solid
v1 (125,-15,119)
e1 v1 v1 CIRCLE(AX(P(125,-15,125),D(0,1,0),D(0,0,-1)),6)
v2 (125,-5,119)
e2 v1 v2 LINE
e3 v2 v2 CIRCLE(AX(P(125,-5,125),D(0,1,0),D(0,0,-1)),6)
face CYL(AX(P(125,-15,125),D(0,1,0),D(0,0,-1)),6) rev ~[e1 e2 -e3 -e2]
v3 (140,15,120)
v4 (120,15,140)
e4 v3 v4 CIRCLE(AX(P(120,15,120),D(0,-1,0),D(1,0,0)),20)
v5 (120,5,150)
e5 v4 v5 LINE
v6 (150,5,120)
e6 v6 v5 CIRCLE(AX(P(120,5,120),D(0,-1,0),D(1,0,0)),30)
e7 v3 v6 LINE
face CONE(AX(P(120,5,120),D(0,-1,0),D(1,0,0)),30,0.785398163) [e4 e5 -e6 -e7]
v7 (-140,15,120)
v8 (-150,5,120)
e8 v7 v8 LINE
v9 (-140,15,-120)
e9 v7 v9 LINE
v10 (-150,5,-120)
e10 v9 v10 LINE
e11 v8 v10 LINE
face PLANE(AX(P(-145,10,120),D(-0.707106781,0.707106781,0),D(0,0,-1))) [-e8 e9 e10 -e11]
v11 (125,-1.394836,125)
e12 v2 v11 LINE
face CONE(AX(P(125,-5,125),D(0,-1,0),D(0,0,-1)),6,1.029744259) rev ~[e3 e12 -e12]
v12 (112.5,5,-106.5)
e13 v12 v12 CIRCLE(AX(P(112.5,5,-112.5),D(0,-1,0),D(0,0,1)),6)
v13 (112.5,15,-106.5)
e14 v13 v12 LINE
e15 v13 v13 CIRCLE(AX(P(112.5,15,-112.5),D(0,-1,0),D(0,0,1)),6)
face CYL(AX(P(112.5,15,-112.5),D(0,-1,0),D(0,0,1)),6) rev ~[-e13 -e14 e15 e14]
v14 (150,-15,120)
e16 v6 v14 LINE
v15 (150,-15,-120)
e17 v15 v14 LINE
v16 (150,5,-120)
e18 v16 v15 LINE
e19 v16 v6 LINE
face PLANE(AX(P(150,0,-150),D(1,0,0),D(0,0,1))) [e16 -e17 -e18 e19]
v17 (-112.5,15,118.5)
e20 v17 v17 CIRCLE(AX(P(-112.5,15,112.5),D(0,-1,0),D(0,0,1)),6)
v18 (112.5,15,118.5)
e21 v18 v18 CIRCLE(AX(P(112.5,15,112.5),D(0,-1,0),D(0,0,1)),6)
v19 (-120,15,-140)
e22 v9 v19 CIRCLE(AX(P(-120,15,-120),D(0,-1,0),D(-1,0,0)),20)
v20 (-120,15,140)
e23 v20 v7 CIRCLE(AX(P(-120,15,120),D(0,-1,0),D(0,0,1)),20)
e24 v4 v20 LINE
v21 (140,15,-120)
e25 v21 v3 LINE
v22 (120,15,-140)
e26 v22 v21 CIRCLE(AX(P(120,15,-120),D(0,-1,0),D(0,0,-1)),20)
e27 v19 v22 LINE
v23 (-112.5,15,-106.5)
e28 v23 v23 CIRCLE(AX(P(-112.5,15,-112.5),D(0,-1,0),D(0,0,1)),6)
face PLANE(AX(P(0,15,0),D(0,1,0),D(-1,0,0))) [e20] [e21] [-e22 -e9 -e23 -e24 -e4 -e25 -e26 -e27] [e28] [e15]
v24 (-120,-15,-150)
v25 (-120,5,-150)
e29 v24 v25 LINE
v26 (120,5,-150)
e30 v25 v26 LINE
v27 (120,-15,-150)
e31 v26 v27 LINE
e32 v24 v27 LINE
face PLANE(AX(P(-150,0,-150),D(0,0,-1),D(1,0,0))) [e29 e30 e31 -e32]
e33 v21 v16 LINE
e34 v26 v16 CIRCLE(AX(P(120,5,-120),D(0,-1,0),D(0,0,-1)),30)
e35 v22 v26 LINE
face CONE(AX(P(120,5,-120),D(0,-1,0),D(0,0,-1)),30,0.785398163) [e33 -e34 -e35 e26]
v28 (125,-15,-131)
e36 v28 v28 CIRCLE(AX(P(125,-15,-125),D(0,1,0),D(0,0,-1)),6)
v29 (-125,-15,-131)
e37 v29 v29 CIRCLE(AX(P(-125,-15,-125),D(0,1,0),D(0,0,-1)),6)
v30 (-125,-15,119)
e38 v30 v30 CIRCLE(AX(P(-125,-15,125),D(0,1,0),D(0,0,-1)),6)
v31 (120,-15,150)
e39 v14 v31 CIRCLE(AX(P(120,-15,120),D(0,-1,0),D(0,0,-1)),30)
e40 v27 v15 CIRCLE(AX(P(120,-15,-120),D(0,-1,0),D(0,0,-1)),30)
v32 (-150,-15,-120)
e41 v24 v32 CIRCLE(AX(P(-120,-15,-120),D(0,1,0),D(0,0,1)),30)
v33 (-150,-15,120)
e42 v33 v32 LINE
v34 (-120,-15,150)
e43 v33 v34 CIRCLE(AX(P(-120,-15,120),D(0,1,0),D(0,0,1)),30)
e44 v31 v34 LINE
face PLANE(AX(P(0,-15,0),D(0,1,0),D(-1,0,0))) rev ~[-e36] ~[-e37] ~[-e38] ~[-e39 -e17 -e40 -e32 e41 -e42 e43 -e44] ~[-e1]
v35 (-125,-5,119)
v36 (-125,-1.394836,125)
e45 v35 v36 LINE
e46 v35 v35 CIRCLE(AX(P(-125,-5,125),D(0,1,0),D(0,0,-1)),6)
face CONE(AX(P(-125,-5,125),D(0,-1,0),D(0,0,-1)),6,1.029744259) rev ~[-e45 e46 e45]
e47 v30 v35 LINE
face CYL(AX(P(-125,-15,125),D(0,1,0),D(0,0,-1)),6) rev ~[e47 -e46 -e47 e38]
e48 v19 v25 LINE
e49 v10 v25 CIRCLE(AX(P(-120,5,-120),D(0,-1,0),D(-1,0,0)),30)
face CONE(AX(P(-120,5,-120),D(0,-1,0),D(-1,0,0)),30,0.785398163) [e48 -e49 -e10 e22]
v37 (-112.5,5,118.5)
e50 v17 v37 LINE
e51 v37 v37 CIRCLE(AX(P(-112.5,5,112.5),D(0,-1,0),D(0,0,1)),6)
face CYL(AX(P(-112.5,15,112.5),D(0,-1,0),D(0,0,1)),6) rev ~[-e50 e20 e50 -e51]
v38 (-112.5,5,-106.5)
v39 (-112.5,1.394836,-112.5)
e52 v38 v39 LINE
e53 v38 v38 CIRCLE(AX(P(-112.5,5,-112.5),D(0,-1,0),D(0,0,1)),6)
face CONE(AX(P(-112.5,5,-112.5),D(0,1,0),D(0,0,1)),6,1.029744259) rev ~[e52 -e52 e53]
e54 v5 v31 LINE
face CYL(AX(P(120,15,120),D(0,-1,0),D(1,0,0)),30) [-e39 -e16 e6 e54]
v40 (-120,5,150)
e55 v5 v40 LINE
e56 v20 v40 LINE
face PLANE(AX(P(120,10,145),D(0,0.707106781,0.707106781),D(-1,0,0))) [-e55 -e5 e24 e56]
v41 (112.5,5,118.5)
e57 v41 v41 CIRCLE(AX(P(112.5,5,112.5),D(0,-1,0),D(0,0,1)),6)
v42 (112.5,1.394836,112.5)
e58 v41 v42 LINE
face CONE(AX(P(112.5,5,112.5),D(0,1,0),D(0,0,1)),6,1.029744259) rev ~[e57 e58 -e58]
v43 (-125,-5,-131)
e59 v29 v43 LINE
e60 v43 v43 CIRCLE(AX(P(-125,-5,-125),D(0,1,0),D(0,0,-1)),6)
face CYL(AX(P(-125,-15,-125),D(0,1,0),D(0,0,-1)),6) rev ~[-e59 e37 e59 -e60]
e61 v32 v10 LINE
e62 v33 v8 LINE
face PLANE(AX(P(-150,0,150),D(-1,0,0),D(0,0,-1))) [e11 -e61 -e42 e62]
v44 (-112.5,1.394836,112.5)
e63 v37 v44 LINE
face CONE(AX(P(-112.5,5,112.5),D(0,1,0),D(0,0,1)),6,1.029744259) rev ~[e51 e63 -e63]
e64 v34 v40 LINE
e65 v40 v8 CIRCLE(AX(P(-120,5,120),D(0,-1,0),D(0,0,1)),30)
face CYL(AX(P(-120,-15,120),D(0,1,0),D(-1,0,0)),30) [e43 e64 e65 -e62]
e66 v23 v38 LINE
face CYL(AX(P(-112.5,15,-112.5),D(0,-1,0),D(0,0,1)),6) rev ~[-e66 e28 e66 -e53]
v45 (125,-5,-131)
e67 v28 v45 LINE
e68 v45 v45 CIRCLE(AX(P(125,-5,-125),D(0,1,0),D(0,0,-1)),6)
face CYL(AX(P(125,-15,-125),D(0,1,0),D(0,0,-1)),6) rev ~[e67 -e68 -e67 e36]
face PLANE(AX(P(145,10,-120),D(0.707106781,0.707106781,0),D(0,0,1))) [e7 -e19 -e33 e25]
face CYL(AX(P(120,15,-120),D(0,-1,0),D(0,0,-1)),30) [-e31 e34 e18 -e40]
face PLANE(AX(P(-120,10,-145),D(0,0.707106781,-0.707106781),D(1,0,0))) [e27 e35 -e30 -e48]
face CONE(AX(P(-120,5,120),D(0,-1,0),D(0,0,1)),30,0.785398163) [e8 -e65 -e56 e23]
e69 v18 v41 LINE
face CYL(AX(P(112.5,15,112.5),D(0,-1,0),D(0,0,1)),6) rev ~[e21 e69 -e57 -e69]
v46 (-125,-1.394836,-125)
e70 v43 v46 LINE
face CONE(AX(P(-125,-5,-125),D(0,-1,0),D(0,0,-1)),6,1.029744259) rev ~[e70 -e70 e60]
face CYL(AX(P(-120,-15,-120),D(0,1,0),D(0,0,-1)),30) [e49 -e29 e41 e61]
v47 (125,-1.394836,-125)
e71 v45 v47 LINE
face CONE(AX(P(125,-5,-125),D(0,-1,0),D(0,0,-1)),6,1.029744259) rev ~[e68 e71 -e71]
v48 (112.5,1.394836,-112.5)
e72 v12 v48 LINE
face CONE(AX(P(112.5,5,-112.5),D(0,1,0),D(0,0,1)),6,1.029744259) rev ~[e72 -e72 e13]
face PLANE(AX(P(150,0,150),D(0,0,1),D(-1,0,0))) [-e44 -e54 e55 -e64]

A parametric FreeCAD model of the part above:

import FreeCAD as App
import Part
import Sketcher
from FreeCAD import Vector


def edges_at(feature, points):
    """Names of the edges that pass closest to the given points."""
    edges = feature.Shape.Edges
    near = lambda p: min(range(len(edges)), key=lambda i: edges[i].distToShape(Part.Vertex(*p))[0])
    return sorted({f"Edge{near(p) + 1}" for p in points})

doc = App.newDocument("Part")
body = doc.addObject("PartDesign::Body", "Body")

sketch1 = body.newObject("Sketcher::SketchObject", "Sketch")
sketch1.AttachmentSupport = (doc.getObject("XZ_Plane"), [""])
sketch1.MapMode = "FlatFace"
sketch1.addGeometry(Part.LineSegment(Vector(150, -150, 0), Vector(-150, -150, 0)), False)
sketch1.addGeometry(Part.LineSegment(Vector(-150, -150, 0), Vector(-150, 150, 0)), False)
sketch1.addGeometry(Part.LineSegment(Vector(-150, 150, 0), Vector(150, 150, 0)), False)
sketch1.addGeometry(Part.LineSegment(Vector(150, 150, 0), Vector(150, -150, 0)), False)
sketch1.addConstraint(Sketcher.Constraint("Coincident", 0, 2, 1, 1))
sketch1.addConstraint(Sketcher.Constraint("Coincident", 1, 2, 2, 1))
sketch1.addConstraint(Sketcher.Constraint("Coincident", 2, 2, 3, 1))
sketch1.addConstraint(Sketcher.Constraint("Coincident", 3, 2, 0, 1))
sketch1.addConstraint(Sketcher.Constraint("Horizontal", 0))
sketch1.addConstraint(Sketcher.Constraint("Vertical", 1))
sketch1.addConstraint(Sketcher.Constraint("Horizontal", 2))
sketch1.addConstraint(Sketcher.Constraint("Vertical", 3))
sketch1.addConstraint(Sketcher.Constraint("Symmetric", 0, 2, 2, 2, -1, 1))
sketch1.addConstraint(Sketcher.Constraint("Equal", 2, 1))
sketch1.addConstraint(Sketcher.Constraint("DistanceX", 0, 2, 0, 1, 300.0))
pad1 = body.newObject("PartDesign::Pad", "Pad")
pad1.Profile = sketch1
pad1.Length = 30
pad1.Midplane = True
doc.recompute()

fillet = body.newObject("PartDesign::Fillet", "Fillet")
fillet.Base = (pad1, edges_at(pad1, [
    (150, 0, 150),
    (150, 0, -150),
    (-150, 0, -150),
    (-150, 0, 150),
]))
fillet.Radius = 30
doc.recompute()

chamfer = body.newObject("PartDesign::Chamfer", "Chamfer")
chamfer.Base = (fillet, edges_at(fillet, [
    (0, 15, 150),
    (141.213, 15, 141.213),
    (150, 15, 0),
    (141.213, 15, -141.213),
    (0, 15, -150),
    (-141.213, 15, -141.213),
    (-150, 15, 0),
    (-141.213, 15, 141.213),
]))
chamfer.Size = 10

sketch2 = body.newObject("Sketcher::SketchObject", "Sketch001")
sketch2.AttachmentSupport = (doc.getObject("XZ_Plane"), [""])
sketch2.MapMode = "FlatFace"
sketch2.AttachmentOffset = App.Placement(Vector(0, 0, -15), App.Rotation())
sketch2.addGeometry(Part.Circle(Vector(-112, -112, 0), Vector(0, 0, 1), 6), False)
sketch2.addGeometry(Part.Circle(Vector(112, -112, 0), Vector(0, 0, 1), 6), False)
sketch2.addGeometry(Part.Circle(Vector(-112, 112, 0), Vector(0, 0, 1), 6), False)
sketch2.addGeometry(Part.Circle(Vector(112, 112, 0), Vector(0, 0, 1), 6), False)
sketch2.addConstraint(Sketcher.Constraint("Equal", 0, 1))
sketch2.addConstraint(Sketcher.Constraint("Equal", 1, 2))
sketch2.addConstraint(Sketcher.Constraint("Equal", 2, 3))
sketch2.addConstraint(Sketcher.Constraint("Symmetric", 1, 3, 2, 3, -1, 1))
sketch2.addConstraint(Sketcher.Constraint("Symmetric", 0, 3, 3, 3, -1, 1))
sketch2.addConstraint(Sketcher.Constraint("Symmetric", 0, 3, 1, 3, -2))
sketch2.addConstraint(Sketcher.Constraint("Diameter", 0, 12.0))
sketch2.addConstraint(Sketcher.Constraint("DistanceX", 0, 3, 1, 3, 225.0))
sketch2.addConstraint(Sketcher.Constraint("DistanceY", 0, 3, 2, 3, 225.0))
doc.recompute()
hole = body.newObject("PartDesign::Hole", "Hole")
hole.Profile = sketch2
hole.ThreadType = "None"
hole.Diameter = 12
hole.DepthType = "Dimension"
hole.Depth = 10
hole.DrillPoint = "Angled"
hole.DrillPointAngle = 118
hole.Reversed = True

sketch3 = body.newObject("Sketcher::SketchObject", "Sketch002")
sketch3.AttachmentSupport = (doc.getObject("XZ_Plane"), [""])
sketch3.MapMode = "FlatFace"
sketch3.AttachmentOffset = App.Placement(Vector(0, 0, 15), App.Rotation())
sketch3.addGeometry(Part.Circle(Vector(125, 125, 0), Vector(0, 0, 1), 6), False)
sketch3.addGeometry(Part.Circle(Vector(125, -125, 0), Vector(0, 0, 1), 6), False)
sketch3.addGeometry(Part.Circle(Vector(-125, 125, 0), Vector(0, 0, 1), 6), False)
sketch3.addGeometry(Part.Circle(Vector(-125, -125, 0), Vector(0, 0, 1), 6), False)
sketch3.addConstraint(Sketcher.Constraint("Equal", 0, 1))
sketch3.addConstraint(Sketcher.Constraint("Equal", 1, 2))
sketch3.addConstraint(Sketcher.Constraint("Equal", 2, 3))
sketch3.addConstraint(Sketcher.Constraint("Symmetric", 1, 3, 2, 3, -1, 1))
sketch3.addConstraint(Sketcher.Constraint("Symmetric", 0, 3, 3, 3, -1, 1))
sketch3.addConstraint(Sketcher.Constraint("Symmetric", 0, 3, 2, 3, -2))
sketch3.addConstraint(Sketcher.Constraint("Diameter", 0, 12.0))
sketch3.addConstraint(Sketcher.Constraint("DistanceX", -1, 1, 0, 3, 125.0))
sketch3.addConstraint(Sketcher.Constraint("DistanceY", -1, 1, 0, 3, 125.0))
doc.recompute()
hole2 = body.newObject("PartDesign::Hole", "Hole001")
hole2.Profile = sketch3
hole2.ThreadType = "None"
hole2.Diameter = 12
hole2.DepthType = "Dimension"
hole2.Depth = 10
hole2.DrillPoint = "Angled"
hole2.DrillPointAngle = 118

doc.recompute()
